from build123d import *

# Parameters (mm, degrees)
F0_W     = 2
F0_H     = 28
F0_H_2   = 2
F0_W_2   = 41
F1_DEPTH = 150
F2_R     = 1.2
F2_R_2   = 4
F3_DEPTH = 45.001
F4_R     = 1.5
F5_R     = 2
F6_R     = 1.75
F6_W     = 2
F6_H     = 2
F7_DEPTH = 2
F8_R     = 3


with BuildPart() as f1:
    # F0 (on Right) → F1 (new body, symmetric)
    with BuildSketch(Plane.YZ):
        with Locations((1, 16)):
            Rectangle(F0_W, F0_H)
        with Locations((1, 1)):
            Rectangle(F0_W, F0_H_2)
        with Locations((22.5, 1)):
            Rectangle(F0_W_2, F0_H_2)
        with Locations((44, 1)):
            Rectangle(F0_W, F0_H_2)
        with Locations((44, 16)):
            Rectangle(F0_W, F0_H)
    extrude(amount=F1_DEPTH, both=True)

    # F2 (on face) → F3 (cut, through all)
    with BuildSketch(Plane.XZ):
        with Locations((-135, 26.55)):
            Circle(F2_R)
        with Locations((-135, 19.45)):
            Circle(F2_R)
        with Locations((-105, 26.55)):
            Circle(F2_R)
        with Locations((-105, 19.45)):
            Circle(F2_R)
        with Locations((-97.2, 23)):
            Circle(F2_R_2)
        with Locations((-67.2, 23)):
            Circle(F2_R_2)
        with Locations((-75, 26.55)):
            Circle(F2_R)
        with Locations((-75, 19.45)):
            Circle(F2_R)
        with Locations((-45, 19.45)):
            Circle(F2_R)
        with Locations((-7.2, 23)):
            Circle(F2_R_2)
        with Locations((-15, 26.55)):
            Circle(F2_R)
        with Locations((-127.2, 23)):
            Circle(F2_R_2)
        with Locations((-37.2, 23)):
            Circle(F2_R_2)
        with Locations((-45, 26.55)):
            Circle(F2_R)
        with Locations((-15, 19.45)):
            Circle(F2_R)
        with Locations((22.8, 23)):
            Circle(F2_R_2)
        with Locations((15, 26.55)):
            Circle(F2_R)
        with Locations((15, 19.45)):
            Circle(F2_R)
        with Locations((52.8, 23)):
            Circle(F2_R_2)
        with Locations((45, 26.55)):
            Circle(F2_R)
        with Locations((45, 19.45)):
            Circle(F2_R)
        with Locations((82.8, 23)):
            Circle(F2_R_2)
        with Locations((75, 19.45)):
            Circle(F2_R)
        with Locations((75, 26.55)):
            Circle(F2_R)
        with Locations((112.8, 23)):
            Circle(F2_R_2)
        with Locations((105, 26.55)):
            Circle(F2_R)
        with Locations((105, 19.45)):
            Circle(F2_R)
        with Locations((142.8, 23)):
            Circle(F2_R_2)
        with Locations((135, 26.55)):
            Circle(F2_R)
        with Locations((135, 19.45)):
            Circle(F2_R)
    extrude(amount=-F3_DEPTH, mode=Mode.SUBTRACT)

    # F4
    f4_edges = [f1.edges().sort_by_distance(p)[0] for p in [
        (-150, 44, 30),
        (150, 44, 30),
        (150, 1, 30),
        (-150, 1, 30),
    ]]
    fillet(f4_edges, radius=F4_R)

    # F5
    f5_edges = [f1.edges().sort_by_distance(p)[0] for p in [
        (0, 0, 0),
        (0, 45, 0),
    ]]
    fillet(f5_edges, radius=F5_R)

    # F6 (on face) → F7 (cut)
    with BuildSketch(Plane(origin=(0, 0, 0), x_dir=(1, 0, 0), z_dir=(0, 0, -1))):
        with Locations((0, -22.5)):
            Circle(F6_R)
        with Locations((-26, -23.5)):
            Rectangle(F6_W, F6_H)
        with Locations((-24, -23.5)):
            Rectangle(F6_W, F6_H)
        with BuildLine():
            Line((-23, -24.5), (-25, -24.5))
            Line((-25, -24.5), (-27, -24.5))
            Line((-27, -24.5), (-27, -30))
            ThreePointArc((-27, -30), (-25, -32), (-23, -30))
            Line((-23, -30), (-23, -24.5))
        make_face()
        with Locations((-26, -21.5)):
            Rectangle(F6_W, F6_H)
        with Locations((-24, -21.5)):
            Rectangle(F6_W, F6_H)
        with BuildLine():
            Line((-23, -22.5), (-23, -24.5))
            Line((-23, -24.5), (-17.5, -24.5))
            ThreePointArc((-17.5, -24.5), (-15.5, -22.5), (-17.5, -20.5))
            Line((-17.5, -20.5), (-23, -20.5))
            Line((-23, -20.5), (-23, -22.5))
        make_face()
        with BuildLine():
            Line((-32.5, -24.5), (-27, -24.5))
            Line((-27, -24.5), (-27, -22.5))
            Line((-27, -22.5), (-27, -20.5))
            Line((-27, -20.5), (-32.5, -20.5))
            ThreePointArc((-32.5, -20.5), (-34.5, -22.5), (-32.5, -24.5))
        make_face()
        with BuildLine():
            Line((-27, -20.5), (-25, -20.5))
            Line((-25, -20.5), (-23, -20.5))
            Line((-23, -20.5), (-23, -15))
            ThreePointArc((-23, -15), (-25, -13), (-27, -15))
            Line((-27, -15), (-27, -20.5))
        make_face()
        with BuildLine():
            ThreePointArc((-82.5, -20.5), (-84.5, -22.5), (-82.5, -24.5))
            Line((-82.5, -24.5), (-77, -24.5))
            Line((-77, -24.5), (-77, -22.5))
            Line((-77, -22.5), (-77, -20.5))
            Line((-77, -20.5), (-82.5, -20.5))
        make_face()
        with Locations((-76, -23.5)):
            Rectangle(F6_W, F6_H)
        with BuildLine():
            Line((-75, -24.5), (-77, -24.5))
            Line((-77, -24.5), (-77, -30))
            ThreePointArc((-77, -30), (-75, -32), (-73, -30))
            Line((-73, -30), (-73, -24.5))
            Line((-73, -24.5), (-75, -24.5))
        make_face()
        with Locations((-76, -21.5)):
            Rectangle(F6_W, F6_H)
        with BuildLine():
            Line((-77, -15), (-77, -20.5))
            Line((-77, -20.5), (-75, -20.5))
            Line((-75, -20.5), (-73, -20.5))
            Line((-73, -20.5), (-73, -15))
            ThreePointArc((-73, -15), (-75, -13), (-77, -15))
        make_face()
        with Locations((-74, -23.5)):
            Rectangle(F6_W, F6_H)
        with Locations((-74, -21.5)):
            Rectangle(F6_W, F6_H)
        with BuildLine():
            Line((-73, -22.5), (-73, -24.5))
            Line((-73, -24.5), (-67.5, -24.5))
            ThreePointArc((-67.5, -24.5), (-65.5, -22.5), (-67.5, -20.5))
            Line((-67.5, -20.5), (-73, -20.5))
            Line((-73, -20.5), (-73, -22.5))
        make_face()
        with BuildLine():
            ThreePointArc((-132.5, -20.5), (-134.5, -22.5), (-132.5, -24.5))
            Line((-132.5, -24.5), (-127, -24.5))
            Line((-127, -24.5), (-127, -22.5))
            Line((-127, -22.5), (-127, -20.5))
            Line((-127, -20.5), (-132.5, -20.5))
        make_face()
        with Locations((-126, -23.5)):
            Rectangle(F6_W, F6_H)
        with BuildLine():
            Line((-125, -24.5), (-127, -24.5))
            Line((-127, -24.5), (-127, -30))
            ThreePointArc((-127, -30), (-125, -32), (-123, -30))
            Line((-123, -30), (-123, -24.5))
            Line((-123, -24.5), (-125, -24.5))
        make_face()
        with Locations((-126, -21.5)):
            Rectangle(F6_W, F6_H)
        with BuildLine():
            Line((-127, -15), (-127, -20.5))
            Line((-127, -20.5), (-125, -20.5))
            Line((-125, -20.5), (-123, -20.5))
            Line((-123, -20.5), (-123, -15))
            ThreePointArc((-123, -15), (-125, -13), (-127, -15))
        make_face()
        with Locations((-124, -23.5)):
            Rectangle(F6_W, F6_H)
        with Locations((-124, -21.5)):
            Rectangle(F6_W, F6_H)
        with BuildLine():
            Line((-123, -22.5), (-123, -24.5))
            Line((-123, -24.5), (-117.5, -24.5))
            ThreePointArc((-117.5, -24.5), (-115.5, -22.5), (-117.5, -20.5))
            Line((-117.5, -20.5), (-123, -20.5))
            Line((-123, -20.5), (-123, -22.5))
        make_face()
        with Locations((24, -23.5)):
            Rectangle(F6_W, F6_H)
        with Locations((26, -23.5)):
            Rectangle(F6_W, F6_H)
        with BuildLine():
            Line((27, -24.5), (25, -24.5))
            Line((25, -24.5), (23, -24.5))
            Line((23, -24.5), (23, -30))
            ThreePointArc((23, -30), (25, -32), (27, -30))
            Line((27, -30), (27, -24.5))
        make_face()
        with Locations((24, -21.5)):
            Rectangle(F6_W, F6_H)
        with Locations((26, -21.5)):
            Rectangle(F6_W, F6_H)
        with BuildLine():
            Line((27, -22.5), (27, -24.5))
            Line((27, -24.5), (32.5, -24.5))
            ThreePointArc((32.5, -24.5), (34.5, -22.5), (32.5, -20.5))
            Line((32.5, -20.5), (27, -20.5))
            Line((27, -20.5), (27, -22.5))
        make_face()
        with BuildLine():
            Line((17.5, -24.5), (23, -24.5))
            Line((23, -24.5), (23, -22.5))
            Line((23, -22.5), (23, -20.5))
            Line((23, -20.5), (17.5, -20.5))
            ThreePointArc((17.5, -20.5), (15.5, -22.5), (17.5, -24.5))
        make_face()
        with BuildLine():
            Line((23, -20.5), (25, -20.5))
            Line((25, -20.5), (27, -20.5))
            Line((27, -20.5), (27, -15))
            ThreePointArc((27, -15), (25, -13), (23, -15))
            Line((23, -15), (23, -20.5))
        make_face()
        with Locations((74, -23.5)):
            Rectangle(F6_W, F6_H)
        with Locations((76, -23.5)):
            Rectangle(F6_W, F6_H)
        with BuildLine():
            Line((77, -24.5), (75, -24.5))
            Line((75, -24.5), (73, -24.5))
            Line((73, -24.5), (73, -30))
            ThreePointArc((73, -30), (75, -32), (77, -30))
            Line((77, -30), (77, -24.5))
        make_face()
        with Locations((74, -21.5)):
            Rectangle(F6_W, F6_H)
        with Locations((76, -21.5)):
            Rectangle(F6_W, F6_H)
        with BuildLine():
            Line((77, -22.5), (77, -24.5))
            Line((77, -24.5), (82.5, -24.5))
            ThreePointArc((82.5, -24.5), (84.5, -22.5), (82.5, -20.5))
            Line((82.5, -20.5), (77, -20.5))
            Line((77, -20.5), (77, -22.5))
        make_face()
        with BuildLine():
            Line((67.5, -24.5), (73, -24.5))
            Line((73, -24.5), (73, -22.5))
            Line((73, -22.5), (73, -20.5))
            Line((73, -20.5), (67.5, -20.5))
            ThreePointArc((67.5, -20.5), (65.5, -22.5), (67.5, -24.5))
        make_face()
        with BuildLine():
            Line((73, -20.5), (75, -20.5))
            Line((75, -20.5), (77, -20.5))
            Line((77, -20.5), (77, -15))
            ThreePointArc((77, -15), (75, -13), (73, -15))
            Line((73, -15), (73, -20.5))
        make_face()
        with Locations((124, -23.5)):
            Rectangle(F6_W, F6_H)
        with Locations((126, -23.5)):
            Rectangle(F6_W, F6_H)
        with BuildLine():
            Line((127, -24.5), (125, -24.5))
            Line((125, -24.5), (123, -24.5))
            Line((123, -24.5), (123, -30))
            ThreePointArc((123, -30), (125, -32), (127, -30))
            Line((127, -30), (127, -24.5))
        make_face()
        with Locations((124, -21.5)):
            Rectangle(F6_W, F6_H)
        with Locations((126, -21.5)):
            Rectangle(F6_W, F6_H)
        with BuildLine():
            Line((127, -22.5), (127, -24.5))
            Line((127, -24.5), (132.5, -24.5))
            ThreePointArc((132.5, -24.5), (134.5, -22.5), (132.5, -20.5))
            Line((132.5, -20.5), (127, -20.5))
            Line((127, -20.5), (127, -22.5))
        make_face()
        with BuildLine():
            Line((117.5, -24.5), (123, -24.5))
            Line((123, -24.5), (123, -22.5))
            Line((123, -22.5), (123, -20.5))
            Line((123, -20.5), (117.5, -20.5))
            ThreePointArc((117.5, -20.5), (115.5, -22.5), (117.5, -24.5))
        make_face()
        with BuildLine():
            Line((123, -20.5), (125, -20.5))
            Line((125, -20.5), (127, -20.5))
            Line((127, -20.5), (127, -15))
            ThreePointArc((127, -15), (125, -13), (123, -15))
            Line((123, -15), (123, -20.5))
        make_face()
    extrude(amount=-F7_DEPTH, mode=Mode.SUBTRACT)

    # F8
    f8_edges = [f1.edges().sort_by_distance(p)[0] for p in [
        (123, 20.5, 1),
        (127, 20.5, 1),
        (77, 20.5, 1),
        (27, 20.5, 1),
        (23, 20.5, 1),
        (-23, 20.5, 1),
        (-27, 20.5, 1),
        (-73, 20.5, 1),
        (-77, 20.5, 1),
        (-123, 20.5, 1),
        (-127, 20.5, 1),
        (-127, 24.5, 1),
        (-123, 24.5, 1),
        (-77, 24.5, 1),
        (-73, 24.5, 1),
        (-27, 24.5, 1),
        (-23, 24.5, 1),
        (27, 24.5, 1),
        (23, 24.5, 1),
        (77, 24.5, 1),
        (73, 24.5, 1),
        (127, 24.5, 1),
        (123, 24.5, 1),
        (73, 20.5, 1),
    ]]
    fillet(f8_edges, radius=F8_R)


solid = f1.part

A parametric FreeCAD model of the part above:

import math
import FreeCAD as App
import Part
import Sketcher

V = App.Vector


def edges_at(feature, points):
    """Names of the edges that pass closest to the given points."""
    edges = feature.Shape.Edges
    near = lambda p: min(range(len(edges)), key=lambda i: edges[i].distToShape(Part.Vertex(*p))[0])
    return sorted({f"Edge{near(p) + 1}" for p in points})


def add_polygon(sketch, points):
    """Adds a closed chain of lines whose ends are joined by coincident constraints."""
    first, n = sketch.GeometryCount, len(points)
    for a, b in zip(points, points[1:] + points[:1]):
        sketch.addGeometry(Part.LineSegment(App.Vector(*a, 0), App.Vector(*b, 0)), False)
    for i in range(n):
        sketch.addConstraint(Sketcher.Constraint("Coincident", first + i, 2, first + (i + 1) % n, 1))

doc = App.newDocument("Part")
body = doc.addObject("PartDesign::Body", "Body")

sketch1 = doc.addObject("Sketcher::SketchObject", "Sketch")
body.addObject(sketch1)
sketch1.AttachmentSupport = (doc.YZ_Plane, [""])
sketch1.MapMode = "FlatFace"
add_polygon(sketch1, [(0, 30), (0, 0), (45, 0), (45, 30), (43, 30), (43, 2), (2, 2), (2, 30)])
sketch1.addConstraint([
    Sketcher.Constraint("Vertical", 0),
    Sketcher.Constraint("Horizontal", 1),
    Sketcher.Constraint("Vertical", 2),
    Sketcher.Constraint("Horizontal", 3),
    Sketcher.Constraint("Vertical", 4),
    Sketcher.Constraint("Horizontal", 5),
    Sketcher.Constraint("Vertical", 6),
    Sketcher.Constraint("Horizontal", 7),
    Sketcher.Constraint("Coincident", 0, 2, -1, 1),
    Sketcher.Constraint("Horizontal", 3, 2, 6, 2),
    Sketcher.Constraint("Equal", 3, 7),
    Sketcher.Constraint("DistanceX", 1, 1, 1, 2, 45.0),
    Sketcher.Constraint("DistanceX", 3, 2, 3, 1, 2.0),
    Sketcher.Constraint("DistanceY", 0, 2, 0, 1, 30.0),
    Sketcher.Constraint("DistanceY", 4, 2, 4, 1, 28.0),
])
pad1 = doc.addObject("PartDesign::Pad", "Pad")
body.addObject(pad1)
pad1.Profile = sketch1
pad1.Length = 300
pad1.Midplane = True

sketch2 = doc.addObject("Sketcher::SketchObject", "Sketch001")
body.addObject(sketch2)
sketch2.AttachmentSupport = (doc.XZ_Plane, [""])
sketch2.MapMode = "FlatFace"
sketch2.addGeometry([
    Part.Circle(V(-135, 26.55, 0), V(0, 0, 1), 1.2),
    Part.Circle(V(-135, 19.45, 0), V(0, 0, 1), 1.2),
    Part.Circle(V(-105, 26.55, 0), V(0, 0, 1), 1.2),
    Part.Circle(V(-105, 19.45, 0), V(0, 0, 1), 1.2),
    Part.Circle(V(-97.2, 23, 0), V(0, 0, 1), 4),
    Part.Circle(V(-67.2, 23, 0), V(0, 0, 1), 4),
    Part.Circle(V(-75, 26.55, 0), V(0, 0, 1), 1.2),
    Part.Circle(V(-75, 19.45, 0), V(0, 0, 1), 1.2),
    Part.Circle(V(-45, 19.45, 0), V(0, 0, 1), 1.2),
    Part.Circle(V(-7.2, 23, 0), V(0, 0, 1), 4),
    Part.Circle(V(-15, 26.55, 0), V(0, 0, 1), 1.2),
    Part.Circle(V(-127.2, 23, 0), V(0, 0, 1), 4),
    Part.Circle(V(-37.2, 23, 0), V(0, 0, 1), 4),
    Part.Circle(V(-45, 26.55, 0), V(0, 0, 1), 1.2),
    Part.Circle(V(-15, 19.45, 0), V(0, 0, 1), 1.2),
    Part.Circle(V(22.8, 23, 0), V(0, 0, 1), 4),
    Part.Circle(V(15, 26.55, 0), V(0, 0, 1), 1.2),
    Part.Circle(V(15, 19.45, 0), V(0, 0, 1), 1.2),
    Part.Circle(V(52.8, 23, 0), V(0, 0, 1), 4),
    Part.Circle(V(45, 26.55, 0), V(0, 0, 1), 1.2),
    Part.Circle(V(45, 19.45, 0), V(0, 0, 1), 1.2),
    Part.Circle(V(82.8, 23, 0), V(0, 0, 1), 4),
    Part.Circle(V(75, 19.45, 0), V(0, 0, 1), 1.2),
    Part.Circle(V(75, 26.55, 0), V(0, 0, 1), 1.2),
    Part.Circle(V(112.8, 23, 0), V(0, 0, 1), 4),
    Part.Circle(V(105, 26.55, 0), V(0, 0, 1), 1.2),
    Part.Circle(V(105, 19.45, 0), V(0, 0, 1), 1.2),
    Part.Circle(V(142.8, 23, 0), V(0, 0, 1), 4),
    Part.Circle(V(135, 26.55, 0), V(0, 0, 1), 1.2),
    Part.Circle(V(135, 19.45, 0), V(0, 0, 1), 1.2),
], False)
sketch2.addConstraint([
    Sketcher.Constraint("Equal", 0, 1),
    Sketcher.Constraint("Equal", 1, 2),
    Sketcher.Constraint("Equal", 2, 3),
    Sketcher.Constraint("Equal", 4, 5),
    Sketcher.Constraint("Equal", 3, 6),
    Sketcher.Constraint("Equal", 6, 7),
    Sketcher.Constraint("Equal", 7, 8),
    Sketcher.Constraint("Equal", 5, 9),
    Sketcher.Constraint("Equal", 8, 10),
    Sketcher.Constraint("Equal", 9, 11),
    Sketcher.Constraint("Equal", 11, 12),
    Sketcher.Constraint("Equal", 10, 13),
    Sketcher.Constraint("Equal", 13, 14),
    Sketcher.Constraint("Equal", 12, 15),
    Sketcher.Constraint("Equal", 14, 16),
    Sketcher.Constraint("Equal", 16, 17),
    Sketcher.Constraint("Equal", 15, 18),
    Sketcher.Constraint("Equal", 17, 19),
    Sketcher.Constraint("Equal", 19, 20),
    Sketcher.Constraint("Equal", 18, 21),
    Sketcher.Constraint("Equal", 20, 22),
    Sketcher.Constraint("Equal", 22, 23),
    Sketcher.Constraint("Equal", 21, 24),
    Sketcher.Constraint("Equal", 23, 25),
    Sketcher.Constraint("Equal", 25, 26),
    Sketcher.Constraint("Equal", 24, 27),
    Sketcher.Constraint("Equal", 26, 28),
    Sketcher.Constraint("Equal", 28, 29),
    Sketcher.Constraint("Symmetric", 10, 3, 16, 3, -2),
    Sketcher.Constraint("Symmetric", 14, 3, 17, 3, -2),
    Sketcher.Constraint("Symmetric", 13, 3, 19, 3, -2),
    Sketcher.Constraint("Symmetric", 8, 3, 20, 3, -2),
    Sketcher.Constraint("Symmetric", 7, 3, 22, 3, -2),
    Sketcher.Constraint("Symmetric", 6, 3, 23, 3, -2),
    Sketcher.Constraint("Symmetric", 2, 3, 25, 3, -2),
    Sketcher.Constraint("Symmetric", 3, 3, 26, 3, -2),
    Sketcher.Constraint("Symmetric", 0, 3, 28, 3, -2),
    Sketcher.Constraint("Symmetric", 1, 3, 29, 3, -2),
    Sketcher.Constraint("Horizontal", 0, 3, 2, 3),
    Sketcher.Constraint("Horizontal", 1, 3, 3, 3),
    Sketcher.Constraint("Horizontal", 4, 3, 5, 3),
    Sketcher.Constraint("Horizontal", 2, 3, 6, 3),
    Sketcher.Constraint("Horizontal", 3, 3, 7, 3),
    Sketcher.Constraint("Horizontal", 7, 3, 8, 3),
    Sketcher.Constraint("Horizontal", 5, 3, 9, 3),
    Sketcher.Constraint("Horizontal", 6, 3, 10, 3),
    Sketcher.Constraint("Horizontal", 9, 3, 11, 3),
    Sketcher.Constraint("Horizontal", 11, 3, 12, 3),
    Sketcher.Constraint("Horizontal", 10, 3, 13, 3),
    Sketcher.Constraint("Horizontal", 8, 3, 14, 3),
    Sketcher.Constraint("Horizontal", 12, 3, 15, 3),
    Sketcher.Constraint("Horizontal", 15, 3, 18, 3),
    Sketcher.Constraint("Horizontal", 18, 3, 21, 3),
    Sketcher.Constraint("Horizontal", 21, 3, 24, 3),
    Sketcher.Constraint("Horizontal", 24, 3, 27, 3),
    Sketcher.Constraint("Vertical", 0, 3, 1, 3),
    Sketcher.Constraint("Vertical", 2, 3, 3, 3),
    Sketcher.Constraint("Vertical", 6, 3, 7, 3),
    Sketcher.Constraint("Vertical", 8, 3, 13, 3),
    Sketcher.Constraint("Vertical", 10, 3, 14, 3),
    Sketcher.Constraint("Diameter", 4, 8.0),
    Sketcher.Constraint("Diameter", 0, 2.4),
    Sketcher.Constraint("DistanceX", 0, 3, -1, 1, 135.0),
    Sketcher.Constraint("DistanceX", 2, 3, -1, 1, 105.0),
    Sketcher.Constraint("DistanceY", -1, 1, 4, 3, 23.0),
    Sketcher.Constraint("DistanceX", 6, 3, -1, 1, 75.0),
    Sketcher.Constraint("DistanceX", 8, 3, -1, 1, 45.0),
    Sketcher.Constraint("DistanceX", 10, 3, -1, 1, 15.0),
    Sketcher.Constraint("DistanceX", 4, 3, 5, 3, 30.0),
    Sketcher.Constraint("DistanceX", 5, 3, 9, 3, 60.0),
    Sketcher.Constraint("DistanceX", 11, 3, 4, 3, 30.0),
    Sketcher.Constraint("DistanceX", 5, 3, 12, 3, 30.0),
    Sketcher.Constraint("DistanceX", 9, 3, 15, 3, 30.0),
    Sketcher.Constraint("DistanceX", 15, 3, 18, 3, 30.0),
    Sketcher.Constraint("DistanceX", 18, 3, 21, 3, 30.0),
    Sketcher.Constraint("DistanceX", 21, 3, 24, 3, 30.0),
    Sketcher.Constraint("DistanceX", 24, 3, 27, 3, 30.0),
    Sketcher.Constraint("DistanceX", 4, 3, -1, 1, 97.2),
    Sketcher.Constraint("DistanceY", 1, 3, 0, 3, 7.1),
    Sketcher.Constraint("DistanceY", -1, 1, 0, 3, 26.55),
])
pocket1 = doc.addObject("PartDesign::Pocket", "Pocket")
body.addObject(pocket1)
pocket1.Profile = sketch2
pocket1.Type = "ThroughAll"
doc.recompute()

fillet = doc.addObject("PartDesign::Fillet", "Fillet")
body.addObject(fillet)
fillet.Base = (pocket1, edges_at(pocket1, [
    (-150, 44, 30),
    (150, 44, 30),
    (150, 1, 30),
    (-150, 1, 30),
]))
fillet.Radius = 1.5
doc.recompute()

fillet2 = doc.addObject("PartDesign::Fillet", "Fillet001")
body.addObject(fillet2)
fillet2.Base = (fillet, edges_at(fillet, [(0, 0, 0), (0, 45, 0)]))
fillet2.Radius = 2

sketch3 = doc.addObject("Sketcher::SketchObject", "Sketch002")
body.addObject(sketch3)
sketch3.AttachmentSupport = (doc.XY_Plane, [""])
sketch3.MapMode = "FlatFace"
sketch3.addGeometry([
    Part.Circle(V(0, 22.5, 0), V(0, 0, 1), 1.75),
    Part.ArcOfCircle(Part.Circle(V(-25, 30, 0), V(0, 0, 1), 2), math.radians(0), math.radians(180)),
    Part.LineSegment(V(-23, 30, 0), V(-23, 24.5, 0)),
    Part.LineSegment(V(-23, 24.5, 0), V(-17.5, 24.5, 0)),
    Part.ArcOfCircle(Part.Circle(V(-17.5, 22.5, 0), V(0, 0, 1), 2), math.radians(-90), math.radians(90)),
    Part.LineSegment(V(-17.5, 20.5, 0), V(-23, 20.5, 0)),
    Part.LineSegment(V(-23, 20.5, 0), V(-23, 15, 0)),
    Part.ArcOfCircle(Part.Circle(V(-25, 15, 0), V(0, 0, 1), 2), math.radians(180), math.radians(360)),
    Part.LineSegment(V(-27, 15, 0), V(-27, 20.5, 0)),
    Part.LineSegment(V(-27, 20.5, 0), V(-32.5, 20.5, 0)),
    Part.ArcOfCircle(Part.Circle(V(-32.5, 22.5, 0), V(0, 0, 1), 2), math.radians(90), math.radians(270)),
    Part.LineSegment(V(-32.5, 24.5, 0), V(-27, 24.5, 0)),
    Part.LineSegment(V(-27, 24.5, 0), V(-27, 30, 0)),
    Part.ArcOfCircle(Part.Circle(V(-82.5, 22.5, 0), V(0, 0, 1), 2), math.radians(90), math.radians(270)),
    Part.LineSegment(V(-82.5, 24.5, 0), V(-77, 24.5, 0)),
    Part.LineSegment(V(-77, 24.5, 0), V(-77, 30, 0)),
    Part.ArcOfCircle(Part.Circle(V(-75, 30, 0), V(0, 0, 1), 2), math.radians(0), math.radians(180)),
    Part.LineSegment(V(-73, 30, 0), V(-73, 24.5, 0)),
    Part.LineSegment(V(-73, 24.5, 0), V(-67.5, 24.5, 0)),
    Part.ArcOfCircle(Part.Circle(V(-67.5, 22.5, 0), V(0, 0, 1), 2), math.radians(-90), math.radians(90)),
    Part.LineSegment(V(-67.5, 20.5, 0), V(-73, 20.5, 0)),
    Part.LineSegment(V(-73, 20.5, 0), V(-73, 15, 0)),
    Part.ArcOfCircle(Part.Circle(V(-75, 15, 0), V(0, 0, 1), 2), math.radians(180), math.radians(360)),
    Part.LineSegment(V(-77, 15, 0), V(-77, 20.5, 0)),
    Part.LineSegment(V(-77, 20.5, 0), V(-82.5, 20.5, 0)),
    Part.ArcOfCircle(Part.Circle(V(-132.5, 22.5, 0), V(0, 0, 1), 2), math.radians(90), math.radians(270)),
    Part.LineSegment(V(-132.5, 24.5, 0), V(-127, 24.5, 0)),
    Part.LineSegment(V(-127, 24.5, 0), V(-127, 30, 0)),
    Part.ArcOfCircle(Part.Circle(V(-125, 30, 0), V(0, 0, 1), 2), math.radians(0), math.radians(180)),
    Part.LineSegment(V(-123, 30, 0), V(-123, 24.5, 0)),
    Part.LineSegment(V(-123, 24.5, 0), V(-117.5, 24.5, 0)),
    Part.ArcOfCircle(Part.Circle(V(-117.5, 22.5, 0), V(0, 0, 1), 2), math.radians(-90), math.radians(90)),
    Part.LineSegment(V(-117.5, 20.5, 0), V(-123, 20.5, 0)),
    Part.LineSegment(V(-123, 20.5, 0), V(-123, 15, 0)),
    Part.ArcOfCircle(Part.Circle(V(-125, 15, 0), V(0, 0, 1), 2), math.radians(180), math.radians(360)),
    Part.LineSegment(V(-127, 15, 0), V(-127, 20.5, 0)),
    Part.LineSegment(V(-127, 20.5, 0), V(-132.5, 20.5, 0)),
    Part.ArcOfCircle(Part.Circle(V(25, 30, 0), V(0, 0, 1), 2), math.radians(0), math.radians(180)),
    Part.LineSegment(V(27, 30, 0), V(27, 24.5, 0)),
    Part.LineSegment(V(27, 24.5, 0), V(32.5, 24.5, 0)),
    Part.ArcOfCircle(Part.Circle(V(32.5, 22.5, 0), V(0, 0, 1), 2), math.radians(-90), math.radians(90)),
    Part.LineSegment(V(32.5, 20.5, 0), V(27, 20.5, 0)),
    Part.LineSegment(V(27, 20.5, 0), V(27, 15, 0)),
    Part.ArcOfCircle(Part.Circle(V(25, 15, 0), V(0, 0, 1), 2), math.radians(180), math.radians(360)),
    Part.LineSegment(V(23, 15, 0), V(23, 20.5, 0)),
    Part.LineSegment(V(23, 20.5, 0), V(17.5, 20.5, 0)),
    Part.ArcOfCircle(Part.Circle(V(17.5, 22.5, 0), V(0, 0, 1), 2), math.radians(90), math.radians(270)),
    Part.LineSegment(V(17.5, 24.5, 0), V(23, 24.5, 0)),
    Part.LineSegment(V(23, 24.5, 0), V(23, 30, 0)),
    Part.ArcOfCircle(Part.Circle(V(75, 30, 0), V(0, 0, 1), 2), math.radians(0), math.radians(180)),
    Part.LineSegment(V(77, 30, 0), V(77, 24.5, 0)),
    Part.LineSegment(V(77, 24.5, 0), V(82.5, 24.5, 0)),
    Part.ArcOfCircle(Part.Circle(V(82.5, 22.5, 0), V(0, 0, 1), 2), math.radians(-90), math.radians(90)),
    Part.LineSegment(V(82.5, 20.5, 0), V(77, 20.5, 0)),
    Part.LineSegment(V(77, 20.5, 0), V(77, 15, 0)),
    Part.ArcOfCircle(Part.Circle(V(75, 15, 0), V(0, 0, 1), 2), math.radians(180), math.radians(360)),
    Part.LineSegment(V(73, 15, 0), V(73, 20.5, 0)),
    Part.LineSegment(V(73, 20.5, 0), V(67.5, 20.5, 0)),
    Part.ArcOfCircle(Part.Circle(V(67.5, 22.5, 0), V(0, 0, 1), 2), math.radians(90), math.radians(270)),
    Part.LineSegment(V(67.5, 24.5, 0), V(73, 24.5, 0)),
    Part.LineSegment(V(73, 24.5, 0), V(73, 30, 0)),
    Part.ArcOfCircle(Part.Circle(V(125, 30, 0), V(0, 0, 1), 2), math.radians(0), math.radians(180)),
    Part.LineSegment(V(127, 30, 0), V(127, 24.5, 0)),
    Part.LineSegment(V(127, 24.5, 0), V(132.5, 24.5, 0)),
    Part.ArcOfCircle(Part.Circle(V(132.5, 22.5, 0), V(0, 0, 1), 2), math.radians(-90), math.radians(90)),
    Part.LineSegment(V(132.5, 20.5, 0), V(127, 20.5, 0)),
    Part.LineSegment(V(127, 20.5, 0), V(127, 15, 0)),
    Part.ArcOfCircle(Part.Circle(V(125, 15, 0), V(0, 0, 1), 2), math.radians(180), math.radians(360)),
    Part.LineSegment(V(123, 15, 0), V(123, 20.5, 0)),
    Part.LineSegment(V(123, 20.5, 0), V(117.5, 20.5, 0)),
    Part.ArcOfCircle(Part.Circle(V(117.5, 22.5, 0), V(0, 0, 1), 2), math.radians(90), math.radians(270)),
    Part.LineSegment(V(117.5, 24.5, 0), V(123, 24.5, 0)),
    Part.LineSegment(V(123, 24.5, 0), V(123, 30, 0)),
], False)
sketch3.addConstraint([
    Sketcher.Constraint("Tangent", 1, 1, 2, 1),
    Sketcher.Constraint("Coincident", 2, 2, 3, 1),
    Sketcher.Constraint("Tangent", 3, 2, 4, 2),
    Sketcher.Constraint("Tangent", 4, 1, 5, 1),
    Sketcher.Constraint("Coincident", 5, 2, 6, 1),
    Sketcher.Constraint("Tangent", 6, 2, 7, 2),
    Sketcher.Constraint("Tangent", 7, 1, 8, 1),
    Sketcher.Constraint("Coincident", 8, 2, 9, 1),
    Sketcher.Constraint("Tangent", 9, 2, 10, 2),
    Sketcher.Constraint("Tangent", 10, 1, 11, 1),
    Sketcher.Constraint("Coincident", 11, 2, 12, 1),
    Sketcher.Constraint("Tangent", 12, 2, 1, 2),
    Sketcher.Constraint("Tangent", 13, 1, 14, 1),
    Sketcher.Constraint("Coincident", 14, 2, 15, 1),
    Sketcher.Constraint("Tangent", 15, 2, 16, 2),
    Sketcher.Constraint("Tangent", 16, 1, 17, 1),
    Sketcher.Constraint("Coincident", 17, 2, 18, 1),
    Sketcher.Constraint("Tangent", 18, 2, 19, 2),
    Sketcher.Constraint("Tangent", 19, 1, 20, 1),
    Sketcher.Constraint("Coincident", 20, 2, 21, 1),
    Sketcher.Constraint("Tangent", 21, 2, 22, 2),
    Sketcher.Constraint("Tangent", 22, 1, 23, 1),
    Sketcher.Constraint("Coincident", 23, 2, 24, 1),
    Sketcher.Constraint("Tangent", 24, 2, 13, 2),
    Sketcher.Constraint("Tangent", 25, 1, 26, 1),
    Sketcher.Constraint("Coincident", 26, 2, 27, 1),
    Sketcher.Constraint("Tangent", 27, 2, 28, 2),
    Sketcher.Constraint("Tangent", 28, 1, 29, 1),
    Sketcher.Constraint("Coincident", 29, 2, 30, 1),
    Sketcher.Constraint("Tangent", 30, 2, 31, 2),
    Sketcher.Constraint("Tangent", 31, 1, 32, 1),
    Sketcher.Constraint("Coincident", 32, 2, 33, 1),
    Sketcher.Constraint("Tangent", 33, 2, 34, 2),
    Sketcher.Constraint("Tangent", 34, 1, 35, 1),
    Sketcher.Constraint("Coincident", 35, 2, 36, 1),
    Sketcher.Constraint("Tangent", 36, 2, 25, 2),
    Sketcher.Constraint("Tangent", 37, 1, 38, 1),
    Sketcher.Constraint("Coincident", 38, 2, 39, 1),
    Sketcher.Constraint("Tangent", 39, 2, 40, 2),
    Sketcher.Constraint("Tangent", 40, 1, 41, 1),
    Sketcher.Constraint("Coincident", 41, 2, 42, 1),
    Sketcher.Constraint("Tangent", 42, 2, 43, 2),
    Sketcher.Constraint("Tangent", 43, 1, 44, 1),
    Sketcher.Constraint("Coincident", 44, 2, 45, 1),
    Sketcher.Constraint("Tangent", 45, 2, 46, 2),
    Sketcher.Constraint("Tangent", 46, 1, 47, 1),
    Sketcher.Constraint("Coincident", 47, 2, 48, 1),
    Sketcher.Constraint("Tangent", 48, 2, 37, 2),
    Sketcher.Constraint("Tangent", 49, 1, 50, 1),
    Sketcher.Constraint("Coincident", 50, 2, 51, 1),
    Sketcher.Constraint("Tangent", 51, 2, 52, 2),
    Sketcher.Constraint("Tangent", 52, 1, 53, 1),
    Sketcher.Constraint("Coincident", 53, 2, 54, 1),
    Sketcher.Constraint("Tangent", 54, 2, 55, 2),
    Sketcher.Constraint("Tangent", 55, 1, 56, 1),
    Sketcher.Constraint("Coincident", 56, 2, 57, 1),
    Sketcher.Constraint("Tangent", 57, 2, 58, 2),
    Sketcher.Constraint("Tangent", 58, 1, 59, 1),
    Sketcher.Constraint("Coincident", 59, 2, 60, 1),
    Sketcher.Constraint("Tangent", 60, 2, 49, 2),
    Sketcher.Constraint("Tangent", 61, 1, 62, 1),
    Sketcher.Constraint("Coincident", 62, 2, 63, 1),
    Sketcher.Constraint("Tangent", 63, 2, 64, 2),
    Sketcher.Constraint("Tangent", 64, 1, 65, 1),
    Sketcher.Constraint("Coincident", 65, 2, 66, 1),
    Sketcher.Constraint("Tangent", 66, 2, 67, 2),
    Sketcher.Constraint("Tangent", 67, 1, 68, 1),
    Sketcher.Constraint("Coincident", 68, 2, 69, 1),
    Sketcher.Constraint("Tangent", 69, 2, 70, 2),
    Sketcher.Constraint("Tangent", 70, 1, 71, 1),
    Sketcher.Constraint("Coincident", 71, 2, 72, 1),
    Sketcher.Constraint("Tangent", 72, 2, 61, 2),
    Sketcher.Constraint("Vertical", 2),
    Sketcher.Constraint("Horizontal", 3),
    Sketcher.Constraint("Horizontal", 5),
    Sketcher.Constraint("Vertical", 6),
    Sketcher.Constraint("Vertical", 8),
    Sketcher.Constraint("Horizontal", 9),
    Sketcher.Constraint("Horizontal", 11),
    Sketcher.Constraint("Vertical", 12),
    Sketcher.Constraint("Horizontal", 14),
    Sketcher.Constraint("Vertical", 15),
    Sketcher.Constraint("Vertical", 17),
    Sketcher.Constraint("Horizontal", 18),
    Sketcher.Constraint("Horizontal", 20),
    Sketcher.Constraint("Vertical", 21),
    Sketcher.Constraint("Vertical", 23),
    Sketcher.Constraint("Horizontal", 24),
    Sketcher.Constraint("Horizontal", 26),
    Sketcher.Constraint("Vertical", 27),
    Sketcher.Constraint("Vertical", 29),
    Sketcher.Constraint("Horizontal", 30),
    Sketcher.Constraint("Horizontal", 32),
    Sketcher.Constraint("Vertical", 33),
    Sketcher.Constraint("Vertical", 35),
    Sketcher.Constraint("Horizontal", 36),
    Sketcher.Constraint("Vertical", 38),
    Sketcher.Constraint("Horizontal", 39),
    Sketcher.Constraint("Horizontal", 41),
    Sketcher.Constraint("Vertical", 42),
    Sketcher.Constraint("Vertical", 44),
    Sketcher.Constraint("Horizontal", 45),
    Sketcher.Constraint("Horizontal", 47),
    Sketcher.Constraint("Vertical", 48),
    Sketcher.Constraint("Vertical", 50),
    Sketcher.Constraint("Horizontal", 51),
    Sketcher.Constraint("Horizontal", 53),
    Sketcher.Constraint("Vertical", 54),
    Sketcher.Constraint("Vertical", 56),
    Sketcher.Constraint("Horizontal", 57),
    Sketcher.Constraint("Horizontal", 59),
    Sketcher.Constraint("Vertical", 60),
    Sketcher.Constraint("Vertical", 62),
    Sketcher.Constraint("Horizontal", 63),
    Sketcher.Constraint("Horizontal", 65),
    Sketcher.Constraint("Vertical", 66),
    Sketcher.Constraint("Vertical", 68),
    Sketcher.Constraint("Horizontal", 69),
    Sketcher.Constraint("Horizontal", 71),
    Sketcher.Constraint("Vertical", 72),
    Sketcher.Constraint("Equal", 1, 4),
    Sketcher.Constraint("Equal", 4, 7),
    Sketcher.Constraint("Equal", 7, 10),
    Sketcher.Constraint("Equal", 10, 13),
    Sketcher.Constraint("Equal", 13, 16),
    Sketcher.Constraint("Equal", 16, 19),
    Sketcher.Constraint("Equal", 19, 22),
    Sketcher.Constraint("Equal", 22, 25),
    Sketcher.Constraint("Equal", 25, 28),
    Sketcher.Constraint("Equal", 28, 31),
    Sketcher.Constraint("Equal", 31, 34),
    Sketcher.Constraint("Equal", 34, 37),
    Sketcher.Constraint("Equal", 37, 40),
    Sketcher.Constraint("Equal", 40, 43),
    Sketcher.Constraint("Equal", 43, 46),
    Sketcher.Constraint("Equal", 46, 49),
    Sketcher.Constraint("Equal", 49, 52),
    Sketcher.Constraint("Equal", 52, 55),
    Sketcher.Constraint("Equal", 55, 58),
    Sketcher.Constraint("Equal", 58, 61),
    Sketcher.Constraint("Equal", 61, 64),
    Sketcher.Constraint("Equal", 64, 67),
    Sketcher.Constraint("Equal", 67, 70),
    Sketcher.Constraint("Symmetric", 1, 3, 37, 3, -2),
    Sketcher.Constraint("Symmetric", 10, 3, 40, 3, -2),
    Sketcher.Constraint("Symmetric", 7, 3, 43, 3, -2),
    Sketcher.Constraint("Symmetric", 4, 3, 46, 3, -2),
    Sketcher.Constraint("Symmetric", 16, 3, 49, 3, -2),
    Sketcher.Constraint("Symmetric", 13, 3, 52, 3, -2),
    Sketcher.Constraint("Symmetric", 22, 3, 55, 3, -2),
    Sketcher.Constraint("Symmetric", 19, 3, 58, 3, -2),
    Sketcher.Constraint("Symmetric", 28, 3, 61, 3, -2),
    Sketcher.Constraint("Symmetric", 25, 3, 64, 3, -2),
    Sketcher.Constraint("Symmetric", 34, 3, 67, 3, -2),
    Sketcher.Constraint("Symmetric", 31, 3, 70, 3, -2),
    Sketcher.Constraint("PointOnObject", 0, 3, -2),
    Sketcher.Constraint("Horizontal", 0, 3, 4, 3),
    Sketcher.Constraint("Horizontal", 4, 3, 10, 3),
    Sketcher.Constraint("Horizontal", 10, 3, 13, 3),
    Sketcher.Constraint("Horizontal", 1, 3, 16, 3),
    Sketcher.Constraint("Horizontal", 13, 3, 19, 3),
    Sketcher.Constraint("Horizontal", 7, 3, 22, 3),
    Sketcher.Constraint("Horizontal", 19, 3, 25, 3),
    Sketcher.Constraint("Horizontal", 16, 3, 28, 3),
    Sketcher.Constraint("Horizontal", 25, 3, 31, 3),
    Sketcher.Constraint("Horizontal", 22, 3, 34, 3),
    Sketcher.Constraint("Vertical", 1, 3, 7, 3),
    Sketcher.Constraint("Vertical", 16, 3, 22, 3),
    Sketcher.Constraint("Vertical", 28, 3, 34, 3),
    Sketcher.Constraint("Equal", 5, 9),
    Sketcher.Constraint("Equal", 11, 14),
    Sketcher.Constraint("Equal", 14, 18),
    Sketcher.Constraint("Equal", 24, 26),
    Sketcher.Constraint("Equal", 26, 30),
    Sketcher.Constraint("Equal", 71, 2),
    Sketcher.Constraint("Equal", 2, 6),
    Sketcher.Constraint("Radius", 1, 2.0),
    Sketcher.Constraint("Diameter", 0, 3.5),
    Sketcher.Constraint("DistanceX", 3, 1, 3, 2, 5.5),
    Sketcher.Constraint("DistanceX", 1, 3, -1, 1, 25.0),
    Sketcher.Constraint("DistanceY", -1, 1, 1, 3, 30.0),
    Sketcher.Constraint("DistanceX", 16, 3, -1, 1, 75.0),
    Sketcher.Constraint("DistanceX", 28, 3, -1, 1, 125.0),
])
pocket2 = doc.addObject("PartDesign::Pocket", "Pocket001")
body.addObject(pocket2)
pocket2.Profile = sketch3
pocket2.Length = 2
pocket2.Reversed = True
doc.recompute()

fillet3 = doc.addObject("PartDesign::Fillet", "Fillet002")
body.addObject(fillet3)
fillet3.Base = (pocket2, edges_at(pocket2, [
    (123, 20.5, 1),
    (127, 20.5, 1),
    (77, 20.5, 1),
    (27, 20.5, 1),
    (23, 20.5, 1),
    (-23, 20.5, 1),
    (-27, 20.5, 1),
    (-73, 20.5, 1),
    (-77, 20.5, 1),
    (-123, 20.5, 1),
    (-127, 20.5, 1),
    (-127, 24.5, 1),
    (-123, 24.5, 1),
    (-77, 24.5, 1),
    (-73, 24.5, 1),
    (-27, 24.5, 1),
    (-23, 24.5, 1),
    (27, 24.5, 1),
    (23, 24.5, 1),
    (77, 24.5, 1),
    (73, 24.5, 1),
    (127, 24.5, 1),
    (123, 24.5, 1),
    (73, 20.5, 1),
]))
fillet3.Radius = 3

doc.recompute()
